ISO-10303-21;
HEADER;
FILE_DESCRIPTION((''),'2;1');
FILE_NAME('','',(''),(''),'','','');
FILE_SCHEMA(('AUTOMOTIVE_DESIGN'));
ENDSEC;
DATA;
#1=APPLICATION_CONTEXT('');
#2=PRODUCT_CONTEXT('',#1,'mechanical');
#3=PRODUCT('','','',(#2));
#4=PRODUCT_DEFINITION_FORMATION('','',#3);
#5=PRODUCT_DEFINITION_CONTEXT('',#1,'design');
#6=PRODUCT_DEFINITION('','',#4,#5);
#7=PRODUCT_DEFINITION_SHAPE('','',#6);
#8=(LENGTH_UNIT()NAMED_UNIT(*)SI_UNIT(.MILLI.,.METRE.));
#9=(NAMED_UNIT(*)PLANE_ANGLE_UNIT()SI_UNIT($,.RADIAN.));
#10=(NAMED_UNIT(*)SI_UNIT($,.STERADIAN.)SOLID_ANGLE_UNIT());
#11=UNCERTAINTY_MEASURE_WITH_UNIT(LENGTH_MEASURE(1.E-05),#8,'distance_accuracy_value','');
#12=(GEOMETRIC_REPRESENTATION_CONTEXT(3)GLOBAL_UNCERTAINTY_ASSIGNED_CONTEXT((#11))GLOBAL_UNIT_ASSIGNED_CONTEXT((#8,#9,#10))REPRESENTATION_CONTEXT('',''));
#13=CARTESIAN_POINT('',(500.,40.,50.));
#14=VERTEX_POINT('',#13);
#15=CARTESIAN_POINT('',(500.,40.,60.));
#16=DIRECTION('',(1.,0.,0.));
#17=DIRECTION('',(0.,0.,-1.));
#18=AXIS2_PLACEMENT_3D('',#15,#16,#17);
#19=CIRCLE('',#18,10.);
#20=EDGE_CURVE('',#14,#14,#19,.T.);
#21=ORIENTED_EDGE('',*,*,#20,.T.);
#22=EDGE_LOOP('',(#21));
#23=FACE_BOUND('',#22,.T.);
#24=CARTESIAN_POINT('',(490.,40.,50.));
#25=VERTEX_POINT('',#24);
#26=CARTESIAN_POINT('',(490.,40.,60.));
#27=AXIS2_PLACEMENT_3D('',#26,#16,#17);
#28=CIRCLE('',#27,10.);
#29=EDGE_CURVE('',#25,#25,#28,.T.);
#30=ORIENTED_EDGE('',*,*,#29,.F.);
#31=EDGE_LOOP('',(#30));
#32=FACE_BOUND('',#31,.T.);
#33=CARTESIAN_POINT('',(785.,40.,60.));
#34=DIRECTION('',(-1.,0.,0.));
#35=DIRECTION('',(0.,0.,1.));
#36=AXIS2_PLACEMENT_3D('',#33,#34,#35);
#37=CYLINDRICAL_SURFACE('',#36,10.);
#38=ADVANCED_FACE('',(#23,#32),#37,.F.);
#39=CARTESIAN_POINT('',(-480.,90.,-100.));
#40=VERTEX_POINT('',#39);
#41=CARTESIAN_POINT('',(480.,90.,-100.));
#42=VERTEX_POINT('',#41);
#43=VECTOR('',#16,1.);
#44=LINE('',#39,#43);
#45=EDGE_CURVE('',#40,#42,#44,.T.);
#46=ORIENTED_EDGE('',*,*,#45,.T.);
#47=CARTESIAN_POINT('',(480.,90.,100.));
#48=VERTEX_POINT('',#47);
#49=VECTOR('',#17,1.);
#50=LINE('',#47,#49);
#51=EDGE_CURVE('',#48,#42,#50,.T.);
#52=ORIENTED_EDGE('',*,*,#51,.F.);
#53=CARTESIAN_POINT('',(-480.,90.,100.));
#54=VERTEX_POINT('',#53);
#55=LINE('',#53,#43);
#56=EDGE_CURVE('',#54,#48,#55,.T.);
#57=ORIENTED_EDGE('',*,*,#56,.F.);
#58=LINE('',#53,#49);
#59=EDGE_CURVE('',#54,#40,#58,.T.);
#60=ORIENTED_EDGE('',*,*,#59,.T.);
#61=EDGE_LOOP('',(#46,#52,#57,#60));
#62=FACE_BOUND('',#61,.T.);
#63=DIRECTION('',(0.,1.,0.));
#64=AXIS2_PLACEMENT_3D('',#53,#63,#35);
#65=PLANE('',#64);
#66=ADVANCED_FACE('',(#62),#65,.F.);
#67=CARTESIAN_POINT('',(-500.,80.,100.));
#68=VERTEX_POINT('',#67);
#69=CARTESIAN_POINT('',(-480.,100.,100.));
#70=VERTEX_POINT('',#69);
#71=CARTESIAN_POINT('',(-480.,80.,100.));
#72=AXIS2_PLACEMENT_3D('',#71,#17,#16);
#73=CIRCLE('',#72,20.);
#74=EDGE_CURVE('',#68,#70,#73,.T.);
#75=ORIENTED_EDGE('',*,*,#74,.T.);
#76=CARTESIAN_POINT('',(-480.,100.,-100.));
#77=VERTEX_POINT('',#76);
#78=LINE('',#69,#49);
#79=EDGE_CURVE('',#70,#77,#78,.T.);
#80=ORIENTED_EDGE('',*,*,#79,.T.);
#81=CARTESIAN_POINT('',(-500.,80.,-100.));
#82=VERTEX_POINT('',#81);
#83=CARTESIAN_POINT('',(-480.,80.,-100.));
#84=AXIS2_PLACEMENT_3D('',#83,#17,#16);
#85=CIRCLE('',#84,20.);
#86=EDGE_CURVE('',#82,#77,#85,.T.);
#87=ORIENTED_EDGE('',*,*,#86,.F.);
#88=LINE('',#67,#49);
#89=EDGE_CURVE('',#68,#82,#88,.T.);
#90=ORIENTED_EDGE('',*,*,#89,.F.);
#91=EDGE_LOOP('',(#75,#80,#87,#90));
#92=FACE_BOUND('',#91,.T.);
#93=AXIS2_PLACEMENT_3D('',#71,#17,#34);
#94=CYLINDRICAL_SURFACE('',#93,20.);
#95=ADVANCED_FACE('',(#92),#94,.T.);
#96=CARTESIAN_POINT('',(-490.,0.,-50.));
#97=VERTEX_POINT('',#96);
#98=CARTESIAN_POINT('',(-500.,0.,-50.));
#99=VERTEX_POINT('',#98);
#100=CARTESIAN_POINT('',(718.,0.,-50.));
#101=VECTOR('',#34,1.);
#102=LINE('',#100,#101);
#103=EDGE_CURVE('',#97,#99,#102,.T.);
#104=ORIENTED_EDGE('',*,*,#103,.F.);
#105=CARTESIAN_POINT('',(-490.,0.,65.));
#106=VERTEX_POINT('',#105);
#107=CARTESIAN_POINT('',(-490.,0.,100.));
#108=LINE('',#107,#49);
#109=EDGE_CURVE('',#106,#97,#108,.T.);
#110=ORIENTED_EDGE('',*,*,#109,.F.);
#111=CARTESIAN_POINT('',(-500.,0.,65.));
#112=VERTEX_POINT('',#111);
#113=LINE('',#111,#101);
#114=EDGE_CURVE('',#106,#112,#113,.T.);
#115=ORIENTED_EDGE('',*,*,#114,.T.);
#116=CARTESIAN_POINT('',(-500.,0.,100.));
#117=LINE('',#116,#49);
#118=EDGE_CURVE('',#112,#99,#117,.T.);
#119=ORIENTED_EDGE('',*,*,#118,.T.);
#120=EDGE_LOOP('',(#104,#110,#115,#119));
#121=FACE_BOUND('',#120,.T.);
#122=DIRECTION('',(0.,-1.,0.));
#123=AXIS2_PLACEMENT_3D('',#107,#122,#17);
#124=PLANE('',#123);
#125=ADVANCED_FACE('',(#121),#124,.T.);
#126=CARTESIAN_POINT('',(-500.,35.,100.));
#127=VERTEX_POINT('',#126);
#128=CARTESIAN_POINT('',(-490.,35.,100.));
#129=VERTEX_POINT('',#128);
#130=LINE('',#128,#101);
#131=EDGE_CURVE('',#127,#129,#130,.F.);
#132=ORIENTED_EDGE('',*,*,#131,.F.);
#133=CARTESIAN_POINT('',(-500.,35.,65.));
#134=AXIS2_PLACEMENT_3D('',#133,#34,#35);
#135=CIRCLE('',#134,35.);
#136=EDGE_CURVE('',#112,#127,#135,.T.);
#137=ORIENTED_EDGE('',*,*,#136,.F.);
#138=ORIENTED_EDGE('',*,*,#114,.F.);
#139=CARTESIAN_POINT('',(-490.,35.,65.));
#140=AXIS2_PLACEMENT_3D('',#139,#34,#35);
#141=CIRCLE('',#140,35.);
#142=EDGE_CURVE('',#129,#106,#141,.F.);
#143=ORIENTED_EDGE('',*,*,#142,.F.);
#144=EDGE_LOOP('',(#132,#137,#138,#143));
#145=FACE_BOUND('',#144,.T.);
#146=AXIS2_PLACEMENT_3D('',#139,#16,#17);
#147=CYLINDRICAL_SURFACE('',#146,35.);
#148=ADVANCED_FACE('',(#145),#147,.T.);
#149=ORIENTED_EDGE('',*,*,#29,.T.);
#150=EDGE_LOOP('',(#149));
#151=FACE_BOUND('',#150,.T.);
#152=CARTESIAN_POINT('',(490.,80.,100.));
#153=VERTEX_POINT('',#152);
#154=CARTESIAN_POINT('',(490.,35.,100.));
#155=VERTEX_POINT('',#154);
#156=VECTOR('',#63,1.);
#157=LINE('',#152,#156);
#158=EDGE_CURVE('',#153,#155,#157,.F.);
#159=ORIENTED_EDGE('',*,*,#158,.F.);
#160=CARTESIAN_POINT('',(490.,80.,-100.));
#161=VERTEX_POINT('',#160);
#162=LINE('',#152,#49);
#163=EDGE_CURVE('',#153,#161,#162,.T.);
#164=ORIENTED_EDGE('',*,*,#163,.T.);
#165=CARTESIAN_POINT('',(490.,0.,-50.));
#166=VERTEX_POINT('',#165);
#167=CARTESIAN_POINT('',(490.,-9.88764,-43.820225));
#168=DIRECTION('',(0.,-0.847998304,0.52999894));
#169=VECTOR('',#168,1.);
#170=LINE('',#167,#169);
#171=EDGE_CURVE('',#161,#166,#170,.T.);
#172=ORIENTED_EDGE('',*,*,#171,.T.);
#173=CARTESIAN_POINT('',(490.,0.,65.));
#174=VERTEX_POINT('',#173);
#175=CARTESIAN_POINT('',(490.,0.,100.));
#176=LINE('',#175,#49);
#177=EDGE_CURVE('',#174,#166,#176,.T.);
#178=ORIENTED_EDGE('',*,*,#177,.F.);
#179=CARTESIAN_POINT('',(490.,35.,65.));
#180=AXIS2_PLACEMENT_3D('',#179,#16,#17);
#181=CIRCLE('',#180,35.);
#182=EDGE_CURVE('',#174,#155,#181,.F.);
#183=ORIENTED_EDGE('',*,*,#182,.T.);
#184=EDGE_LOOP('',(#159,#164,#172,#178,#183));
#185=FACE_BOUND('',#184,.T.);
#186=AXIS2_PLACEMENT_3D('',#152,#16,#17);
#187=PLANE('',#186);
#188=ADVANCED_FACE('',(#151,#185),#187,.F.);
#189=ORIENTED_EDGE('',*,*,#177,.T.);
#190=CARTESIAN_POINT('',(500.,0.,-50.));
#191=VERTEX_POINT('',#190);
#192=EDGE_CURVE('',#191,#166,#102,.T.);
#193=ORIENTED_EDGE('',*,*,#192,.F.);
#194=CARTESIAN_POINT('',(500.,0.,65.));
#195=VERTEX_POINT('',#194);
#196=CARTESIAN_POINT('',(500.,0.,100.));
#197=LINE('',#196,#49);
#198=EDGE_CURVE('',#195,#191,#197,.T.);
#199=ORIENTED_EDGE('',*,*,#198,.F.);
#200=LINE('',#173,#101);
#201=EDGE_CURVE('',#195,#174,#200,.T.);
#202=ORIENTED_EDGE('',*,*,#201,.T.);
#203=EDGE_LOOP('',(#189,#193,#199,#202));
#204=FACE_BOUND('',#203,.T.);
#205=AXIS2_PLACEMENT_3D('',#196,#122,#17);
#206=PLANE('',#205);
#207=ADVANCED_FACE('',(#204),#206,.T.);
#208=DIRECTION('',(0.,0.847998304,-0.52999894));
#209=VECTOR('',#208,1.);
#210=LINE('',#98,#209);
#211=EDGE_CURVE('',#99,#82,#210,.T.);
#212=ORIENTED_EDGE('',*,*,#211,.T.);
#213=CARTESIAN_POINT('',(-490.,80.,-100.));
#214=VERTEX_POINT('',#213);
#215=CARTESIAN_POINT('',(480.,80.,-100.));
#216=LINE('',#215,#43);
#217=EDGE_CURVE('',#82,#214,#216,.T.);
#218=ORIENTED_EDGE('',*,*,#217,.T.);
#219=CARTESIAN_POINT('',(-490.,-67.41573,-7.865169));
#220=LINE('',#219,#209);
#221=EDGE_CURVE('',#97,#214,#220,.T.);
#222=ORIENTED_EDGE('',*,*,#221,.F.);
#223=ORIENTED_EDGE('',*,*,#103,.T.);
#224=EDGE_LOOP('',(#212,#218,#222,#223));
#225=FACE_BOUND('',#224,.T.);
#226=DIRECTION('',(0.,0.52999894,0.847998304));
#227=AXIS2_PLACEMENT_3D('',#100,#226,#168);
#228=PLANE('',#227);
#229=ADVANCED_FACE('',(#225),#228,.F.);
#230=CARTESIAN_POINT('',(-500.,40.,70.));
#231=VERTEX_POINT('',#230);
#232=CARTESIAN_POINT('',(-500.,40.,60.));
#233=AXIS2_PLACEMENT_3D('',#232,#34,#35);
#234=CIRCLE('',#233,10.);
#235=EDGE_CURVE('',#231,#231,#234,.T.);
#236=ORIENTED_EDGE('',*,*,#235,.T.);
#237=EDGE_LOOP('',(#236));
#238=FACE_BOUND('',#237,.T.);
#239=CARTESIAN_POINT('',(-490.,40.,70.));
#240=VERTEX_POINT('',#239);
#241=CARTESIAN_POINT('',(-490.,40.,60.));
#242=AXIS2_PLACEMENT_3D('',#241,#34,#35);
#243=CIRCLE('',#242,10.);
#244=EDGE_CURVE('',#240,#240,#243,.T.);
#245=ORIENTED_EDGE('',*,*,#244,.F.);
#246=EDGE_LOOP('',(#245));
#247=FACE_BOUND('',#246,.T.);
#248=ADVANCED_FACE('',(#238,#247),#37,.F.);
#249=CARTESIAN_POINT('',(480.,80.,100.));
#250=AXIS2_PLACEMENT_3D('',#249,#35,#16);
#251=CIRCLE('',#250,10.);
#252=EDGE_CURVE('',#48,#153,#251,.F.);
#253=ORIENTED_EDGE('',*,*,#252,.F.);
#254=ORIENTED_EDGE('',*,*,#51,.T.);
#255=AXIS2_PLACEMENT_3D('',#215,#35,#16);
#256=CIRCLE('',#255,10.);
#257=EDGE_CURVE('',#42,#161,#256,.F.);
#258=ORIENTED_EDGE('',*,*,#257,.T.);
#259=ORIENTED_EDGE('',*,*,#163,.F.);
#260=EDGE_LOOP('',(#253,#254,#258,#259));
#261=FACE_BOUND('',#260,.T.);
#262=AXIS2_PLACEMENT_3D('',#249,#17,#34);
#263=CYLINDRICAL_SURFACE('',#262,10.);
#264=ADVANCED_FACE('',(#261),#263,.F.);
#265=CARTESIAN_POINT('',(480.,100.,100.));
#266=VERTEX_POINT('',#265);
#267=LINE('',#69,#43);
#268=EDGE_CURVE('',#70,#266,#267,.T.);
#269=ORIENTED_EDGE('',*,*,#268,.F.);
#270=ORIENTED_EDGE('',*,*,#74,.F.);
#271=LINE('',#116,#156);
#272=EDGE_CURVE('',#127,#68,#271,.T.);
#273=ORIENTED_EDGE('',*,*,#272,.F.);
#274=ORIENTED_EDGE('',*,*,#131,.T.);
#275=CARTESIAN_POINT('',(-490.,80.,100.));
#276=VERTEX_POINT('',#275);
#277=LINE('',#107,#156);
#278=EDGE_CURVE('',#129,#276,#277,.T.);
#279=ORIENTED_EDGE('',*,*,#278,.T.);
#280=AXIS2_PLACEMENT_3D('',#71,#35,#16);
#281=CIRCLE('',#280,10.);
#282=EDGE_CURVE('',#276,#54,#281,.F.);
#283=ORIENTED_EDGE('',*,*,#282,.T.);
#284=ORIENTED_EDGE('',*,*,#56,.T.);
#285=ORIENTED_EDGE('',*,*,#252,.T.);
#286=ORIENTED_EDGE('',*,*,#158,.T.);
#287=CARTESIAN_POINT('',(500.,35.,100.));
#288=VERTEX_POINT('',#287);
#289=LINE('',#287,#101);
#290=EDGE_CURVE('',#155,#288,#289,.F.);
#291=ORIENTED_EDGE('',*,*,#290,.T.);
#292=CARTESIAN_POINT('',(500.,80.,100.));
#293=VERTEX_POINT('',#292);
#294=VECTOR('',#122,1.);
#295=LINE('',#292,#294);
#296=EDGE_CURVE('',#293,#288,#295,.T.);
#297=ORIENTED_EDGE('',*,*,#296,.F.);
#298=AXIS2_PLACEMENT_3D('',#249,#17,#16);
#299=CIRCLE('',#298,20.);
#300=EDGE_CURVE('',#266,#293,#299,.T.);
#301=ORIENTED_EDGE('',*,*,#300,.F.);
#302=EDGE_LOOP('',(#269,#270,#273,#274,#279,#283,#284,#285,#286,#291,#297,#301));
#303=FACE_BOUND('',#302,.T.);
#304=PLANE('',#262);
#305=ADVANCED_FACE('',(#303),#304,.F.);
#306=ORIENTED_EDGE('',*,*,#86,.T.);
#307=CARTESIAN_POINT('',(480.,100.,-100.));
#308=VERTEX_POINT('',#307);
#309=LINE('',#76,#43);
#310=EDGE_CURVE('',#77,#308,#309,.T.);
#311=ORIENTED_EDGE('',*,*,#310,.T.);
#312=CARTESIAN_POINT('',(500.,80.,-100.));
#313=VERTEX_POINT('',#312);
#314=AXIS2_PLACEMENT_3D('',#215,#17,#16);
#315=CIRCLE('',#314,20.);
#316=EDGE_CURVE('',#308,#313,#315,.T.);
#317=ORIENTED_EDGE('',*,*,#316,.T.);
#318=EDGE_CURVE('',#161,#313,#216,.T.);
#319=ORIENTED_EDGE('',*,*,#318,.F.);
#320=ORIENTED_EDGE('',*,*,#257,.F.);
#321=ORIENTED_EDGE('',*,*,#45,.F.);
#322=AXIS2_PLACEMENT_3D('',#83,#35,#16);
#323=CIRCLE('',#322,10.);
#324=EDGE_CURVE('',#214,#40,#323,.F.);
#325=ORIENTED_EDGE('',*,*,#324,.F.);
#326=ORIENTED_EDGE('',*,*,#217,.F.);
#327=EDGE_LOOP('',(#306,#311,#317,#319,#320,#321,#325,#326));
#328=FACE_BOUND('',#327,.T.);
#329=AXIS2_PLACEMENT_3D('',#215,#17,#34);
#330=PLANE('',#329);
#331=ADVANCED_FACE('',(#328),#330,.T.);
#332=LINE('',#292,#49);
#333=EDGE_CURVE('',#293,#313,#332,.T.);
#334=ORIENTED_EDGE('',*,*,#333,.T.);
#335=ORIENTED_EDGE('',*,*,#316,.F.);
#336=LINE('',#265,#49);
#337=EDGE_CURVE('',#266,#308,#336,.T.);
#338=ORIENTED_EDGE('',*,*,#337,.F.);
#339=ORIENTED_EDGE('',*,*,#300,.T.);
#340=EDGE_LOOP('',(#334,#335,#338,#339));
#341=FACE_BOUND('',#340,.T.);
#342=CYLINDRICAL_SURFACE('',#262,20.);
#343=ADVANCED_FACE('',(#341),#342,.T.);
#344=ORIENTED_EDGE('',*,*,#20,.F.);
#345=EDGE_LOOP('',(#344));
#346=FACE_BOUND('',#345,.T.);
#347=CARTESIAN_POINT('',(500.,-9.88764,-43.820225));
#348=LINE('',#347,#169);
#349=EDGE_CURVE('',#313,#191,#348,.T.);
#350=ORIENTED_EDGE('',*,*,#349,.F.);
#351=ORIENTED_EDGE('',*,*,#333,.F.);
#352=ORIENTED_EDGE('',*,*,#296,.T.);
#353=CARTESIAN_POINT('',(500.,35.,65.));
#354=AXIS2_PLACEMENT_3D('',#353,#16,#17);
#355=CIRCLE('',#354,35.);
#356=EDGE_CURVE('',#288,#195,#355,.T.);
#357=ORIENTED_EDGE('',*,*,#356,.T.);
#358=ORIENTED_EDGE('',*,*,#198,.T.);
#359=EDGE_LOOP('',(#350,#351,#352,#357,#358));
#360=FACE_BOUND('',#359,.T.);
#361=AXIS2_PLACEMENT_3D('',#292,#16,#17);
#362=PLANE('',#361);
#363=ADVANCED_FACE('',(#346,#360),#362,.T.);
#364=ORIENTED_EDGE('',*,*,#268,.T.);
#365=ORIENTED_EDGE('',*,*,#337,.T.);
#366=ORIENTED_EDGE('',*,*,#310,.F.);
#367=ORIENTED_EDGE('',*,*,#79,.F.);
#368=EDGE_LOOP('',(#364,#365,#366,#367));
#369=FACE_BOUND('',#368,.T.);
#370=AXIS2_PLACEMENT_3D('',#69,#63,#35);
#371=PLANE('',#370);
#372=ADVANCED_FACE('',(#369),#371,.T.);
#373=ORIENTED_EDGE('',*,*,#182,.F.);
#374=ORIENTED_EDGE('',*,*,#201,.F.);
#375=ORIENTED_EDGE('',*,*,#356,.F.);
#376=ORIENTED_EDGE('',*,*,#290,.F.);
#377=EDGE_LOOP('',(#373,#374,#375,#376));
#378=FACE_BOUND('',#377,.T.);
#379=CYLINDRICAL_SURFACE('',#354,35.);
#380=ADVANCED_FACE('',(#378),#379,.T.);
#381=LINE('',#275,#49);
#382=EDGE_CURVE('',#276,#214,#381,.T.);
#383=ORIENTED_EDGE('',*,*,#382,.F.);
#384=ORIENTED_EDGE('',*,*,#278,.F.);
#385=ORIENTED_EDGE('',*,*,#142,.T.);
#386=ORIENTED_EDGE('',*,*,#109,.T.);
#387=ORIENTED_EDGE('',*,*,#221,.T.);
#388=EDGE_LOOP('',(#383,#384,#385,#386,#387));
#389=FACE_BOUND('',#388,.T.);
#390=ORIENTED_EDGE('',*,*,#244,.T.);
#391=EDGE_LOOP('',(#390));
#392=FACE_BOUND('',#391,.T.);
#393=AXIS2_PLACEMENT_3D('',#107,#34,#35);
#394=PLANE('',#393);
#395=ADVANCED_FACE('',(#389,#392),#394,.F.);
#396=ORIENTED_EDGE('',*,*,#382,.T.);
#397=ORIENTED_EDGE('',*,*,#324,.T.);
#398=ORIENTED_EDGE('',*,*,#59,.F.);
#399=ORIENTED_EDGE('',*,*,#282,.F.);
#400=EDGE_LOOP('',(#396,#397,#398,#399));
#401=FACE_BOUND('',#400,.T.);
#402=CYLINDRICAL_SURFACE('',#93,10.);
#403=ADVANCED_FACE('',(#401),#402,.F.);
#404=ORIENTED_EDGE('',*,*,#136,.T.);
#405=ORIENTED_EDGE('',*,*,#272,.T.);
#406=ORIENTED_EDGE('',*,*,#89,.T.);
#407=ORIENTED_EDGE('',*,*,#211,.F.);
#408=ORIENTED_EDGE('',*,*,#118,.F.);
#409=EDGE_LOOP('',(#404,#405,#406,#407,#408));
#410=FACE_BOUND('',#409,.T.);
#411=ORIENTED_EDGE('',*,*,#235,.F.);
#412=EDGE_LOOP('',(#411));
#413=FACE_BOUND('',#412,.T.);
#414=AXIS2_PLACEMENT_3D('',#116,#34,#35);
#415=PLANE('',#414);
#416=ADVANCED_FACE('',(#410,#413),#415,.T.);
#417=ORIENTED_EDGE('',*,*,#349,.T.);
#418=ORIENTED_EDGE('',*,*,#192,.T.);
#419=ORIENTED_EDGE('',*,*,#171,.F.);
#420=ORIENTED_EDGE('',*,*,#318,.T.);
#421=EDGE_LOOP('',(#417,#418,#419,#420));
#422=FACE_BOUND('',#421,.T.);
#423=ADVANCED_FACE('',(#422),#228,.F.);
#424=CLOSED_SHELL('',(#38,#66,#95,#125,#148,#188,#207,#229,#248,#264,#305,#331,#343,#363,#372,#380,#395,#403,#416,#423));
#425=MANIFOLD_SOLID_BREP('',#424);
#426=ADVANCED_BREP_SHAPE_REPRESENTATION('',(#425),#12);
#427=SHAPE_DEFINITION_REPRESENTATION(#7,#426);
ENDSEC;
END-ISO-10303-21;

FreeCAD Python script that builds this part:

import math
import FreeCAD as App
import Part
import Sketcher

V = App.Vector


def edges_at(feature, points):
    """Names of the edges that pass closest to the given points."""
    edges = feature.Shape.Edges
    near = lambda p: min(range(len(edges)), key=lambda i: edges[i].distToShape(Part.Vertex(*p))[0])
    return sorted({f"Edge{near(p) + 1}" for p in points})

doc = App.newDocument("Part")
body = doc.addObject("PartDesign::Body", "Body")

# Sketch on XY plane
sketch1 = body.newObject("Sketcher::SketchObject", "Sketch")
sketch1.AttachmentSupport = (doc.getObject("XY_Plane"), [""])
sketch1.MapMode = "FlatFace"
sketch1.addGeometry([
    Part.LineSegment(V(-500, 80, 0), V(-500, 0, 0)),  # 0
    Part.LineSegment(V(-500, 0, 0), V(-490, 0, 0)),  # 1
    Part.LineSegment(V(-490, 0, 0), V(-490, 80, 0)),  # 2
    Part.ArcOfCircle(Part.Circle(V(-480, 80, 0), V(0, 0, 1), 10), math.radians(90), math.radians(180)),  # 3
    Part.LineSegment(V(-480, 90, 0), V(480, 90, 0)),  # 4
    Part.ArcOfCircle(Part.Circle(V(480, 80, 0), V(0, 0, 1), 10), math.radians(0), math.radians(90)),  # 5
    Part.LineSegment(V(490, 80, 0), V(490, 0, 0)),  # 6
    Part.LineSegment(V(490, 0, 0), V(500, 0, 0)),  # 7
    Part.LineSegment(V(500, 0, 0), V(500, 80, 0)),  # 8
    Part.ArcOfCircle(Part.Circle(V(480, 80, 0), V(0, 0, 1), 20), math.radians(0), math.radians(90)),  # 9
    Part.LineSegment(V(480, 100, 0), V(-480, 100, 0)),  # 10
    Part.ArcOfCircle(Part.Circle(V(-480, 80, 0), V(0, 0, 1), 20), math.radians(90), math.radians(180)),  # 11
], False)
sketch1.addConstraint([
    Sketcher.Constraint("Coincident", 0, 2, 1, 1),
    Sketcher.Constraint("Coincident", 1, 2, 2, 1),
    Sketcher.Constraint("Tangent", 2, 2, 3, 2),
    Sketcher.Constraint("Tangent", 3, 1, 4, 1),
    Sketcher.Constraint("Tangent", 4, 2, 5, 2),
    Sketcher.Constraint("Tangent", 5, 1, 6, 1),
    Sketcher.Constraint("Coincident", 6, 2, 7, 1),
    Sketcher.Constraint("Coincident", 7, 2, 8, 1),
    Sketcher.Constraint("Tangent", 8, 2, 9, 1),
    Sketcher.Constraint("Tangent", 9, 2, 10, 1),
    Sketcher.Constraint("Tangent", 10, 2, 11, 1),
    Sketcher.Constraint("Tangent", 11, 2, 0, 1),
    Sketcher.Constraint("Vertical", 0),
    Sketcher.Constraint("Horizontal", 1),
    Sketcher.Constraint("Vertical", 2),
    Sketcher.Constraint("Horizontal", 4),
    Sketcher.Constraint("Vertical", 6),
    Sketcher.Constraint("Horizontal", 7),
    Sketcher.Constraint("Vertical", 8),
    Sketcher.Constraint("Horizontal", 10),
    Sketcher.Constraint("Coincident", 9, 3, 5, 3),
    Sketcher.Constraint("Coincident", 11, 3, 3, 3),
    Sketcher.Constraint("Equal", 3, 5),
    Sketcher.Constraint("Symmetric", 1, 2, 6, 2, -1, 1),
    Sketcher.Constraint("PointOnObject", 0, 2, -1),
    Sketcher.Constraint("Radius", 3, 10.0),
    Sketcher.Constraint("Radius", 9, 20.0),
    Sketcher.Constraint("DistanceX", 4, 1, 4, 2, 960.0),
    Sketcher.Constraint("DistanceY", 0, 2, 0, 1, 80.0),
])
pad1 = body.newObject("PartDesign::Pad", "Pad")
pad1.Profile = sketch1
pad1.Length = 200
pad1.Midplane = True

# Sketch on YZ plane
sketch2 = body.newObject("Sketcher::SketchObject", "Sketch001")
sketch2.AttachmentSupport = (doc.getObject("YZ_Plane"), [""])
sketch2.MapMode = "FlatFace"
sketch2.AttachmentOffset = App.Placement(V(0, 0, -500), App.Rotation())
sketch2.addGeometry([
    Part.LineSegment(V(80, -100, 0), V(0, -100, 0)),
    Part.LineSegment(V(0, -100, 0), V(0, -50, 0)),
    Part.LineSegment(V(0, -50, 0), V(80, -100, 0)),
], False)
sketch2.addConstraint([
    Sketcher.Constraint("Coincident", 0, 2, 1, 1),
    Sketcher.Constraint("Coincident", 1, 2, 2, 1),
    Sketcher.Constraint("Coincident", 2, 2, 0, 1),
    Sketcher.Constraint("Horizontal", 0),
    Sketcher.Constraint("Vertical", 1),
    Sketcher.Constraint("PointOnObject", 0, 2, -2),
    Sketcher.Constraint("DistanceX", 0, 2, 0, 1, 80.0),
    Sketcher.Constraint("DistanceY", 1, 1, 1, 2, 50.0),
    Sketcher.Constraint("DistanceY", 0, 2, -1, 1, 100.0),
])
pocket1 = body.newObject("PartDesign::Pocket", "Pocket")
pocket1.Profile = sketch2
pocket1.Length = 1218
pocket1.Reversed = True

# Sketch on YZ plane
sketch3 = body.newObject("Sketcher::SketchObject", "Sketch002")
sketch3.AttachmentSupport = (doc.getObject("YZ_Plane"), [""])
sketch3.MapMode = "FlatFace"
sketch3.AttachmentOffset = App.Placement(V(0, 0, -500), App.Rotation())
sketch3.addGeometry(Part.Circle(V(40, 60, 0), V(0, 0, 1), 10), False)
sketch3.addConstraint([
    Sketcher.Constraint("Diameter", 0, 20.0),
    Sketcher.Constraint("DistanceX", -1, 1, 0, 3, 40.0),
    Sketcher.Constraint("DistanceY", -1, 1, 0, 3, 60.0),
])
pocket2 = body.newObject("PartDesign::Pocket", "Pocket001")
pocket2.Profile = sketch3
pocket2.Length = 1285
pocket2.Reversed = True
doc.recompute()

fillet = body.newObject("PartDesign::Fillet", "Fillet")
fillet.Base = (pocket2, edges_at(pocket2, [(-495, 0, 100), (495, 0, 100)]))
fillet.Radius = 35

doc.recompute()
